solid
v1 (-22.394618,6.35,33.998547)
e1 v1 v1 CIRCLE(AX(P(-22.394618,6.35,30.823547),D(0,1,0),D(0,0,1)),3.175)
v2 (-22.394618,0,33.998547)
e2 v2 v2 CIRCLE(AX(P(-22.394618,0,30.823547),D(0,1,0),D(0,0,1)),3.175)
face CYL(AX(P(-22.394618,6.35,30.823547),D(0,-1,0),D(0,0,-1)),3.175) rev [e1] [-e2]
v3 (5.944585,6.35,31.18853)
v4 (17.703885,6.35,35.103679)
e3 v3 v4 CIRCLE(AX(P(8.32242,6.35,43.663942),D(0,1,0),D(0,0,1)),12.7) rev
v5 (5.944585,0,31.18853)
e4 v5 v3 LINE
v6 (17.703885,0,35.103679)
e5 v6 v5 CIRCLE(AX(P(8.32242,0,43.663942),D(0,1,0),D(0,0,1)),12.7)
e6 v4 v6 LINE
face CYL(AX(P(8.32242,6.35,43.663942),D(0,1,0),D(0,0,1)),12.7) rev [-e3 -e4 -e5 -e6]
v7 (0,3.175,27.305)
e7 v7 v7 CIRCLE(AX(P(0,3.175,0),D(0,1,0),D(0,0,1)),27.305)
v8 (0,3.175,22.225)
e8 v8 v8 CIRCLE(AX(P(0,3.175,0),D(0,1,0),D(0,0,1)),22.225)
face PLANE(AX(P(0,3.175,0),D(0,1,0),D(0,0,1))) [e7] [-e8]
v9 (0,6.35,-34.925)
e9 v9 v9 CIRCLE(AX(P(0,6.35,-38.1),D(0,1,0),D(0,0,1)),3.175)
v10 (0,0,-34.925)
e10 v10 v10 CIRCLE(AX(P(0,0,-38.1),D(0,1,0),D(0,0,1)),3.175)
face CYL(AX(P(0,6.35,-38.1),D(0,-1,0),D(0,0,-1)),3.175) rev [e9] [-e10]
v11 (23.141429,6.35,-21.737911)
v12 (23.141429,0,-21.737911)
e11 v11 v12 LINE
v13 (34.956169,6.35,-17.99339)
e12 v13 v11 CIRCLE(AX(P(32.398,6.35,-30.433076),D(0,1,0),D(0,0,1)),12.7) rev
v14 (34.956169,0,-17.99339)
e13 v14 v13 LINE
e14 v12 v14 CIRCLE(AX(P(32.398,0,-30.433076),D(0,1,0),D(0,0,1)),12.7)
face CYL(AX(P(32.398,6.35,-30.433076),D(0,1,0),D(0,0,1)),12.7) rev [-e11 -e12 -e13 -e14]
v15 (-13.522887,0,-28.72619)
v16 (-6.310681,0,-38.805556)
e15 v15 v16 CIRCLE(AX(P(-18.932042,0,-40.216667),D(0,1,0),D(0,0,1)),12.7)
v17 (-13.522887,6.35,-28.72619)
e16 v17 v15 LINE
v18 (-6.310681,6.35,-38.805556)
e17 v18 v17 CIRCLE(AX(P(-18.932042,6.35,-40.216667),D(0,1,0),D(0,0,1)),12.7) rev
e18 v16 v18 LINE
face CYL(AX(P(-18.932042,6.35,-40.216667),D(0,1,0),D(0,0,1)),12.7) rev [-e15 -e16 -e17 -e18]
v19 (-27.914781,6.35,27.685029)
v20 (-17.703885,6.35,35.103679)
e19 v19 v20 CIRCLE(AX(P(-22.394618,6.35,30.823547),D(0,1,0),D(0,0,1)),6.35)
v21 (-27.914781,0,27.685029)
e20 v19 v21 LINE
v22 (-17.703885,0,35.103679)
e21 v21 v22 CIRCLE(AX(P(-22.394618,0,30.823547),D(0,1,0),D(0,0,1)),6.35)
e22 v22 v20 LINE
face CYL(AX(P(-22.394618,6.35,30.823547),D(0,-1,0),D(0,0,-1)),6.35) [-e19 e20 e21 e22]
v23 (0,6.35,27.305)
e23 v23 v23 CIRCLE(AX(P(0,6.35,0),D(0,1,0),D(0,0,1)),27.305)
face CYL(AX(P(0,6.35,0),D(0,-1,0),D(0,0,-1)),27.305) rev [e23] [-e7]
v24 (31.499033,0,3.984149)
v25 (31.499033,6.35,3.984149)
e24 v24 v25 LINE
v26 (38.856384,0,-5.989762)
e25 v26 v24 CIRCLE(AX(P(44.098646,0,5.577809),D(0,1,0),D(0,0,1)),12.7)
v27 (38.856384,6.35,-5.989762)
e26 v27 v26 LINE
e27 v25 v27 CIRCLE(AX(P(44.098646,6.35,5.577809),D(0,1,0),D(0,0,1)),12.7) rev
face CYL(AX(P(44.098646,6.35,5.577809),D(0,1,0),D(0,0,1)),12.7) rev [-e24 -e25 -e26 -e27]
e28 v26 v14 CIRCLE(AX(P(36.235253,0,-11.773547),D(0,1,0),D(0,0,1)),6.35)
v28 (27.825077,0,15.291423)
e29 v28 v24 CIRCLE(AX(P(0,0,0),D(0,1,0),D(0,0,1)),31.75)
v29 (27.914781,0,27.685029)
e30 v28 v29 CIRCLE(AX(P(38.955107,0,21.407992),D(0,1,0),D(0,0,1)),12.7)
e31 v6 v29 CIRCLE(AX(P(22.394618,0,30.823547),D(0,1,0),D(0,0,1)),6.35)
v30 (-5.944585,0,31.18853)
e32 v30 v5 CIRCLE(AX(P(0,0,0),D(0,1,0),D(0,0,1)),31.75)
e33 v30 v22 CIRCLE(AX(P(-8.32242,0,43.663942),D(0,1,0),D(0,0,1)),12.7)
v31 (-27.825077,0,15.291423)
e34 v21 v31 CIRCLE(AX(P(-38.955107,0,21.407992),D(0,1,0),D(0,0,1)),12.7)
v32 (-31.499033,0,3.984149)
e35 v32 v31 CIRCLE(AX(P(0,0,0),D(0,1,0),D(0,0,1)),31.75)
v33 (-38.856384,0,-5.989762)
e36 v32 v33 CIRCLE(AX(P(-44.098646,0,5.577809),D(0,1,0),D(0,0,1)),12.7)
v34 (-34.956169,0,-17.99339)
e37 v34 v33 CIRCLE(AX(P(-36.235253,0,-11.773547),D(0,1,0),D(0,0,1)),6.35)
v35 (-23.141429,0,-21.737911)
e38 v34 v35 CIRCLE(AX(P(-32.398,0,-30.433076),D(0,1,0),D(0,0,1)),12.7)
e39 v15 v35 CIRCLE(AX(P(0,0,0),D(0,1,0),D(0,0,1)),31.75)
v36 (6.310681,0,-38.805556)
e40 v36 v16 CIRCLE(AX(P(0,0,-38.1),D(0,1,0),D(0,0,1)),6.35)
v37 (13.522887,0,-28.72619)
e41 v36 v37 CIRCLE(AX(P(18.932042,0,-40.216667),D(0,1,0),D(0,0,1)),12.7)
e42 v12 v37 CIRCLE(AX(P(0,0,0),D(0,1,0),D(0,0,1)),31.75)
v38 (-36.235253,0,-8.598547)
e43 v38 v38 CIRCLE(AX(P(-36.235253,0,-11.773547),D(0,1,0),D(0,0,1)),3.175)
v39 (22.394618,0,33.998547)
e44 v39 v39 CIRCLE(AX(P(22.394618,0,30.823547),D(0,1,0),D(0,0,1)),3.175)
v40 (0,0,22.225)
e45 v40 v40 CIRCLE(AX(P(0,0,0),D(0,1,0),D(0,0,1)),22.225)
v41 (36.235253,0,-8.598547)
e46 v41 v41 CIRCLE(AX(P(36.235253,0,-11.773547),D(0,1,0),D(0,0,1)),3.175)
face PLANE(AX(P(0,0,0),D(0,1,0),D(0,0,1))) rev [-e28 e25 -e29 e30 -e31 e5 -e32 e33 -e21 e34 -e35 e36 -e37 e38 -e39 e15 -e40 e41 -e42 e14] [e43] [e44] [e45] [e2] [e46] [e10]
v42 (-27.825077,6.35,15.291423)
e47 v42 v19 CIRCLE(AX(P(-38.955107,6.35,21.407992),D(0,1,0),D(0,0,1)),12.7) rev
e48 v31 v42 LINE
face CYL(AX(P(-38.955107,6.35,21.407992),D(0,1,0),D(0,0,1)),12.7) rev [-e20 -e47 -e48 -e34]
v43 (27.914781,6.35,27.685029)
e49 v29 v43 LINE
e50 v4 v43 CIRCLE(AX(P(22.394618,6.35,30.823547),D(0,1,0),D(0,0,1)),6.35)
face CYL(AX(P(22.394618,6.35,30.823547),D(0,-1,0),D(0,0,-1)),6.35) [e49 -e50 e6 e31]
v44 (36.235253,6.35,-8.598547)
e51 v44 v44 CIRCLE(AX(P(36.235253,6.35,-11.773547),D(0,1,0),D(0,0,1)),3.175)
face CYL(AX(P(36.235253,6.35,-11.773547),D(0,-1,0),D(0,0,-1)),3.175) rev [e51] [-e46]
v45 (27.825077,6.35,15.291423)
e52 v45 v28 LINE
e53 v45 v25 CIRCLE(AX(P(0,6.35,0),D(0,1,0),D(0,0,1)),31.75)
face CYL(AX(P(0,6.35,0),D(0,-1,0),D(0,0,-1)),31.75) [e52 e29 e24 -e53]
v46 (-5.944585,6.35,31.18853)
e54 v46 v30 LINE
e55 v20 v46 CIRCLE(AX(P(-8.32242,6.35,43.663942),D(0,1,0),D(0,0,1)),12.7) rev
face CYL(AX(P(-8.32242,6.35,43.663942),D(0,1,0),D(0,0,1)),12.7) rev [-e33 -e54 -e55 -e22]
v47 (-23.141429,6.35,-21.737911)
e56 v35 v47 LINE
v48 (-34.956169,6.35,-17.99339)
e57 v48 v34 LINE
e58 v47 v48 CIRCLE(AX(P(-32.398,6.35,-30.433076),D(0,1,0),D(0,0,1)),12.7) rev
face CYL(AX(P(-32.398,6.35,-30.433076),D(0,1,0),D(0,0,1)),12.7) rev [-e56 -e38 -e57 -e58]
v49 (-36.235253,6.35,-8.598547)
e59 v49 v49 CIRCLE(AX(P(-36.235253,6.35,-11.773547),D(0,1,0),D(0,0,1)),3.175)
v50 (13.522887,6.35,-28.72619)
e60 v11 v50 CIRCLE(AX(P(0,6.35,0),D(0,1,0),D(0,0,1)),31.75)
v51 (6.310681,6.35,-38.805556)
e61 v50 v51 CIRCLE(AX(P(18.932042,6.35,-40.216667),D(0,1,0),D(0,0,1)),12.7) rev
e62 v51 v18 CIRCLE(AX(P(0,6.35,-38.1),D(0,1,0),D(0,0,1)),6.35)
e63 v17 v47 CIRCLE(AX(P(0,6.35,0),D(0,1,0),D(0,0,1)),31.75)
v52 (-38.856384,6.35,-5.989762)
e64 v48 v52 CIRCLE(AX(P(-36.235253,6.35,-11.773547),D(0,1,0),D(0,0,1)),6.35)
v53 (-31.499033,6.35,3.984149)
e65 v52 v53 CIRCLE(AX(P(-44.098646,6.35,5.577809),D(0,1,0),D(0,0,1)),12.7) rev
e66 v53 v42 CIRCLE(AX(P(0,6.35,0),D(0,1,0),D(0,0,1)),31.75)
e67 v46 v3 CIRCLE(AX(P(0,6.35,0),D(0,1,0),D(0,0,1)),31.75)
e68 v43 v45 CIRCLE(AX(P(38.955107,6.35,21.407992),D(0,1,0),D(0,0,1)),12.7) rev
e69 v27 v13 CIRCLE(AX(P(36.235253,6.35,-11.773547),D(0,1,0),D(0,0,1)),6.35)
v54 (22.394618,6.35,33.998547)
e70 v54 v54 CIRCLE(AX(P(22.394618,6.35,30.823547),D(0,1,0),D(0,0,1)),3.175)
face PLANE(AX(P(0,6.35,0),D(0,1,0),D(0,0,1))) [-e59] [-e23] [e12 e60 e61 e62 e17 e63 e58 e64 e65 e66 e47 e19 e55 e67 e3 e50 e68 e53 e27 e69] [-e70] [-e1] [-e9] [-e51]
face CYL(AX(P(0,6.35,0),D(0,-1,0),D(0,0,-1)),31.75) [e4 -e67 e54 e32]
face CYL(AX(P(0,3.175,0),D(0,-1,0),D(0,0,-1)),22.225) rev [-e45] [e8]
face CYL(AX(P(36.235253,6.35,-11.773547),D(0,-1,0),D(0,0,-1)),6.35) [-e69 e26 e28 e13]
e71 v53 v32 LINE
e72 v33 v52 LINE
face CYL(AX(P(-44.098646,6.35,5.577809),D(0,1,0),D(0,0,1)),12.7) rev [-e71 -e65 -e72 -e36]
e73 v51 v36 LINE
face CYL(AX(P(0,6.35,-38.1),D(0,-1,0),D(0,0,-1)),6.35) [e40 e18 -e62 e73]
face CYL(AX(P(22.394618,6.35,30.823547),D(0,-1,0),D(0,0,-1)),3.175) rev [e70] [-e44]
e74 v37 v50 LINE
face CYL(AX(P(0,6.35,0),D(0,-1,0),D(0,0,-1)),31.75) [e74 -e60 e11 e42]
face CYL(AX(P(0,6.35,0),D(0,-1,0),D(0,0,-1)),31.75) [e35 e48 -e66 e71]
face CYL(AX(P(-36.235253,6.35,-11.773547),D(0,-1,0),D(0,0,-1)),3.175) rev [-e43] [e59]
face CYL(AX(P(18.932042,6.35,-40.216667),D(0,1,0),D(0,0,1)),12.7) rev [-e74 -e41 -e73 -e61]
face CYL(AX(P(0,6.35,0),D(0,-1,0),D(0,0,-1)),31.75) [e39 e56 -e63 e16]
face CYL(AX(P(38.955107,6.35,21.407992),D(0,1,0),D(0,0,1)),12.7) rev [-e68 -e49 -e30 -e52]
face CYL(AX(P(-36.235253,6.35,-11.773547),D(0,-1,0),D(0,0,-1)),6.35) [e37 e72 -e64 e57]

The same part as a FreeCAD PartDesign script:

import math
import FreeCAD as App
import Part
import Sketcher
from FreeCAD import Vector
Q = App.Units.Quantity


def edges_at(feature, points):
    """Names of the edges that pass closest to the given points."""
    edges = feature.Shape.Edges
    near = lambda p: min(range(len(edges)), key=lambda i: edges[i].distToShape(Part.Vertex(*p))[0])
    return sorted({f"Edge{near(p) + 1}" for p in points})

doc = App.newDocument("Part")
body = doc.addObject("PartDesign::Body", "Body")

sketch1 = doc.addObject("Sketcher::SketchObject", "Sketch")
body.addObject(sketch1)
sketch1.AttachmentSupport = (doc.XZ_Plane, [""])
sketch1.MapMode = "FlatFace"
sketch1.addGeometry(Part.LineSegment(Vector(6.3, -31.1, 0), Vector(6.3, -38.1, 0)), False)
sketch1.addGeometry(Part.ArcOfCircle(Part.Circle(Vector(0, -38.1, 0), Vector(0, 0, 1), 6.3), math.radians(180), math.radians(360)), False)
sketch1.addGeometry(Part.LineSegment(Vector(-6.3, -38.1, 0), Vector(-6.3, -31.1, 0)), False)
sketch1.addGeometry(Part.ArcOfCircle(Part.Circle(Vector(0, 0, 0), Vector(0, 0, 1), 31.8), math.radians(-150), math.radians(-102)), False)
sketch1.addGeometry(Part.LineSegment(Vector(-27.6, -15.7, 0), Vector(-34.3, -17.8, 0)), False)
sketch1.addGeometry(Part.ArcOfCircle(Part.Circle(Vector(-36.2, -11.8, 0), Vector(0, 0, 1), 6.3), math.radians(108), math.radians(288)), False)
sketch1.addGeometry(Part.LineSegment(Vector(-38.2, -5.7, 0), Vector(-31.5, -3.6, 0)), False)
sketch1.addGeometry(Part.ArcOfCircle(Part.Circle(Vector(0, 0, 0), Vector(0, 0, 1), 31.8), math.radians(138), math.radians(186)), False)
sketch1.addGeometry(Part.LineSegment(Vector(-23.4, 21.4, 0), Vector(-27.5, 27.1, 0)), False)
sketch1.addGeometry(Part.ArcOfCircle(Part.Circle(Vector(-22.4, 30.8, 0), Vector(0, 0, 1), 6.3), math.radians(36), math.radians(216)), False)
sketch1.addGeometry(Part.LineSegment(Vector(-17.3, 34.6, 0), Vector(-13.1, 28.9, 0)), False)
sketch1.addGeometry(Part.ArcOfCircle(Part.Circle(Vector(0, 0, 0), Vector(0, 0, 1), 31.8), math.radians(66), math.radians(114)), False)
sketch1.addGeometry(Part.LineSegment(Vector(13.1, 28.9, 0), Vector(17.3, 34.6, 0)), False)
sketch1.addGeometry(Part.ArcOfCircle(Part.Circle(Vector(22.4, 30.8, 0), Vector(0, 0, 1), 6.3), math.radians(-36), math.radians(144)), False)
sketch1.addGeometry(Part.LineSegment(Vector(27.5, 27.1, 0), Vector(23.4, 21.4, 0)), False)
sketch1.addGeometry(Part.ArcOfCircle(Part.Circle(Vector(0, 0, 0), Vector(0, 0, 1), 31.8), math.radians(-6), math.radians(42)), False)
sketch1.addGeometry(Part.LineSegment(Vector(31.5, -3.6, 0), Vector(38.2, -5.7, 0)), False)
sketch1.addGeometry(Part.ArcOfCircle(Part.Circle(Vector(36.2, -11.8, 0), Vector(0, 0, 1), 6.3), math.radians(-108), math.radians(72)), False)
sketch1.addGeometry(Part.LineSegment(Vector(34.3, -17.8, 0), Vector(27.6, -15.7, 0)), False)
sketch1.addGeometry(Part.ArcOfCircle(Part.Circle(Vector(0, 0, 0), Vector(0, 0, 1), 31.8), math.radians(-78), math.radians(-30)), False)
sketch1.addGeometry(Part.Circle(Vector(-22.4, 30.8, 0), Vector(0, 0, 1), 3.2), False)
sketch1.addGeometry(Part.Circle(Vector(22.4, 30.8, 0), Vector(0, 0, 1), 3.2), False)
sketch1.addGeometry(Part.Circle(Vector(0, 0, 0), Vector(0, 0, 1), 27.3), False)
sketch1.addGeometry(Part.Circle(Vector(-36.2, -11.8, 0), Vector(0, 0, 1), 3.2), False)
sketch1.addGeometry(Part.Circle(Vector(36.2, -11.8, 0), Vector(0, 0, 1), 3.2), False)
sketch1.addGeometry(Part.Circle(Vector(0, -38.1, 0), Vector(0, 0, 1), 3.2), False)
sketch1.addConstraint(Sketcher.Constraint("Tangent", 0, 2, 1, 2))
sketch1.addConstraint(Sketcher.Constraint("Tangent", 1, 1, 2, 1))
sketch1.addConstraint(Sketcher.Constraint("Coincident", 2, 2, 3, 2))
sketch1.addConstraint(Sketcher.Constraint("Coincident", 3, 1, 4, 1))
sketch1.addConstraint(Sketcher.Constraint("Tangent", 4, 2, 5, 2))
sketch1.addConstraint(Sketcher.Constraint("Tangent", 5, 1, 6, 1))
sketch1.addConstraint(Sketcher.Constraint("Coincident", 6, 2, 7, 2))
sketch1.addConstraint(Sketcher.Constraint("Coincident", 7, 1, 8, 1))
sketch1.addConstraint(Sketcher.Constraint("Tangent", 8, 2, 9, 2))
sketch1.addConstraint(Sketcher.Constraint("Tangent", 9, 1, 10, 1))
sketch1.addConstraint(Sketcher.Constraint("Coincident", 10, 2, 11, 2))
sketch1.addConstraint(Sketcher.Constraint("Coincident", 11, 1, 12, 1))
sketch1.addConstraint(Sketcher.Constraint("Tangent", 12, 2, 13, 2))
sketch1.addConstraint(Sketcher.Constraint("Tangent", 13, 1, 14, 1))
sketch1.addConstraint(Sketcher.Constraint("Coincident", 14, 2, 15, 2))
sketch1.addConstraint(Sketcher.Constraint("Coincident", 15, 1, 16, 1))
sketch1.addConstraint(Sketcher.Constraint("Tangent", 16, 2, 17, 2))
sketch1.addConstraint(Sketcher.Constraint("Tangent", 17, 1, 18, 1))
sketch1.addConstraint(Sketcher.Constraint("Coincident", 18, 2, 19, 2))
sketch1.addConstraint(Sketcher.Constraint("Coincident", 19, 1, 0, 1))
sketch1.addConstraint(Sketcher.Constraint("Vertical", 0))
sketch1.addConstraint(Sketcher.Constraint("Vertical", 2))
sketch1.addConstraint(Sketcher.Constraint("Coincident", 3, 3, -1, 1))
sketch1.addConstraint(Sketcher.Constraint("Coincident", 7, 3, -1, 1))
sketch1.addConstraint(Sketcher.Constraint("Coincident", 11, 3, -1, 1))
sketch1.addConstraint(Sketcher.Constraint("Coincident", 15, 3, -1, 1))
sketch1.addConstraint(Sketcher.Constraint("Coincident", 19, 3, -1, 1))
sketch1.addConstraint(Sketcher.Constraint("Coincident", 22, 3, -1, 1))
sketch1.addConstraint(Sketcher.Constraint("Coincident", 20, 3, 9, 3))
sketch1.addConstraint(Sketcher.Constraint("Coincident", 21, 3, 13, 3))
sketch1.addConstraint(Sketcher.Constraint("Coincident", 23, 3, 5, 3))
sketch1.addConstraint(Sketcher.Constraint("Coincident", 24, 3, 17, 3))
sketch1.addConstraint(Sketcher.Constraint("Coincident", 25, 3, 1, 3))
sketch1.addConstraint(Sketcher.Constraint("Equal", 1, 5))
sketch1.addConstraint(Sketcher.Constraint("Equal", 3, 7))
sketch1.addConstraint(Sketcher.Constraint("Equal", 5, 9))
sketch1.addConstraint(Sketcher.Constraint("Equal", 7, 11))
sketch1.addConstraint(Sketcher.Constraint("Equal", 9, 13))
sketch1.addConstraint(Sketcher.Constraint("Equal", 11, 15))
sketch1.addConstraint(Sketcher.Constraint("Equal", 13, 17))
sketch1.addConstraint(Sketcher.Constraint("Equal", 15, 19))
sketch1.addConstraint(Sketcher.Constraint("Equal", 20, 21))
sketch1.addConstraint(Sketcher.Constraint("Equal", 21, 23))
sketch1.addConstraint(Sketcher.Constraint("Equal", 23, 24))
sketch1.addConstraint(Sketcher.Constraint("Equal", 24, 25))
sketch1.addConstraint(Sketcher.Constraint("Symmetric", 9, 3, 13, 3, -2))
sketch1.addConstraint(Sketcher.Constraint("Symmetric", 5, 3, 17, 3, -2))
sketch1.addConstraint(Sketcher.Constraint("PointOnObject", 1, 3, -2))
sketch1.addConstraint(Sketcher.Constraint("Parallel", 4, 6))
sketch1.addConstraint(Sketcher.Constraint("Parallel", 8, 10))
sketch1.addConstraint(Sketcher.Constraint("Parallel", 12, 14))
sketch1.addConstraint(Sketcher.Constraint("Parallel", 16, 18))
sketch1.addConstraint(Sketcher.Constraint("Horizontal", 10, 2, 11, 1))
sketch1.addConstraint(Sketcher.Constraint("Horizontal", 6, 2, 15, 1))
sketch1.addConstraint(Sketcher.Constraint("Equal", 4, 6))
sketch1.addConstraint(Sketcher.Constraint("Equal", 6, 8))
sketch1.addConstraint(Sketcher.Constraint("Equal", 8, 10))
sketch1.addConstraint(Sketcher.Constraint("Diameter", 20, Q("0.25 in")))
sketch1.addConstraint(Sketcher.Constraint("Diameter", 22, Q("2.15 in")))
sketch1.addConstraint(Sketcher.Constraint("Radius", 1, Q("0.25 in")))
sketch1.addConstraint(Sketcher.Constraint("Radius", 3, Q("1.25 in")))
sketch1.addConstraint(Sketcher.Constraint("Angle", 4, Q("-162 deg")))
sketch1.addConstraint(Sketcher.Constraint("Angle", 8, Q("126 deg")))
sketch1.addConstraint(Sketcher.Constraint("DistanceY", 1, 3, -1, 1, Q("1.5 in")))
sketch1.addConstraint(Sketcher.Constraint("DistanceY", 7, 1, 9, 1, 13.121099))
pad1 = doc.addObject("PartDesign::Pad", "Pad")
body.addObject(pad1)
pad1.Profile = sketch1
pad1.Length = Q("0.25 in")
pad1.Reversed = True

sketch2 = doc.addObject("Sketcher::SketchObject", "Sketch001")
body.addObject(sketch2)
sketch2.AttachmentSupport = (doc.XZ_Plane, [""])
sketch2.MapMode = "FlatFace"
sketch2.addGeometry(Part.Circle(Vector(0, 0, 0), Vector(0, 0, 1), 27), False)
sketch2.addGeometry(Part.Circle(Vector(0, 0, 0), Vector(0, 0, 1), 22), False)
sketch2.addConstraint(Sketcher.Constraint("Coincident", 0, 3, -1, 1))
sketch2.addConstraint(Sketcher.Constraint("Coincident", 1, 3, -1, 1))
sketch2.addConstraint(Sketcher.Constraint("Diameter", 0, Q("2.15 in")))
sketch2.addConstraint(Sketcher.Constraint("Diameter", 1, Q("1.75 in")))
pad2 = doc.addObject("PartDesign::Pad", "Pad001")
body.addObject(pad2)
pad2.Profile = sketch2
pad2.Length = Q("0.125 in")
pad2.Reversed = True
doc.recompute()

fillet = doc.addObject("PartDesign::Fillet", "Fillet")
body.addObject(fillet)
fillet.Base = (pad2, edges_at(pad2, [
    (27.624, 3.175, -15.652),
    (31.548, 3.175, -3.574),
    (23.422, 3.175, 21.435),
    (13.148, 3.175, 28.9),
    (-13.148, 3.175, 28.9),
    (-23.422, 3.175, 21.435),
    (-31.548, 3.175, -3.574),
    (-27.624, 3.175, -15.652),
    (-6.35, 3.175, -31.109),
    (6.35, 3.175, -31.109),
]))
fillet.Radius = Q("0.5 in")

doc.recompute()
